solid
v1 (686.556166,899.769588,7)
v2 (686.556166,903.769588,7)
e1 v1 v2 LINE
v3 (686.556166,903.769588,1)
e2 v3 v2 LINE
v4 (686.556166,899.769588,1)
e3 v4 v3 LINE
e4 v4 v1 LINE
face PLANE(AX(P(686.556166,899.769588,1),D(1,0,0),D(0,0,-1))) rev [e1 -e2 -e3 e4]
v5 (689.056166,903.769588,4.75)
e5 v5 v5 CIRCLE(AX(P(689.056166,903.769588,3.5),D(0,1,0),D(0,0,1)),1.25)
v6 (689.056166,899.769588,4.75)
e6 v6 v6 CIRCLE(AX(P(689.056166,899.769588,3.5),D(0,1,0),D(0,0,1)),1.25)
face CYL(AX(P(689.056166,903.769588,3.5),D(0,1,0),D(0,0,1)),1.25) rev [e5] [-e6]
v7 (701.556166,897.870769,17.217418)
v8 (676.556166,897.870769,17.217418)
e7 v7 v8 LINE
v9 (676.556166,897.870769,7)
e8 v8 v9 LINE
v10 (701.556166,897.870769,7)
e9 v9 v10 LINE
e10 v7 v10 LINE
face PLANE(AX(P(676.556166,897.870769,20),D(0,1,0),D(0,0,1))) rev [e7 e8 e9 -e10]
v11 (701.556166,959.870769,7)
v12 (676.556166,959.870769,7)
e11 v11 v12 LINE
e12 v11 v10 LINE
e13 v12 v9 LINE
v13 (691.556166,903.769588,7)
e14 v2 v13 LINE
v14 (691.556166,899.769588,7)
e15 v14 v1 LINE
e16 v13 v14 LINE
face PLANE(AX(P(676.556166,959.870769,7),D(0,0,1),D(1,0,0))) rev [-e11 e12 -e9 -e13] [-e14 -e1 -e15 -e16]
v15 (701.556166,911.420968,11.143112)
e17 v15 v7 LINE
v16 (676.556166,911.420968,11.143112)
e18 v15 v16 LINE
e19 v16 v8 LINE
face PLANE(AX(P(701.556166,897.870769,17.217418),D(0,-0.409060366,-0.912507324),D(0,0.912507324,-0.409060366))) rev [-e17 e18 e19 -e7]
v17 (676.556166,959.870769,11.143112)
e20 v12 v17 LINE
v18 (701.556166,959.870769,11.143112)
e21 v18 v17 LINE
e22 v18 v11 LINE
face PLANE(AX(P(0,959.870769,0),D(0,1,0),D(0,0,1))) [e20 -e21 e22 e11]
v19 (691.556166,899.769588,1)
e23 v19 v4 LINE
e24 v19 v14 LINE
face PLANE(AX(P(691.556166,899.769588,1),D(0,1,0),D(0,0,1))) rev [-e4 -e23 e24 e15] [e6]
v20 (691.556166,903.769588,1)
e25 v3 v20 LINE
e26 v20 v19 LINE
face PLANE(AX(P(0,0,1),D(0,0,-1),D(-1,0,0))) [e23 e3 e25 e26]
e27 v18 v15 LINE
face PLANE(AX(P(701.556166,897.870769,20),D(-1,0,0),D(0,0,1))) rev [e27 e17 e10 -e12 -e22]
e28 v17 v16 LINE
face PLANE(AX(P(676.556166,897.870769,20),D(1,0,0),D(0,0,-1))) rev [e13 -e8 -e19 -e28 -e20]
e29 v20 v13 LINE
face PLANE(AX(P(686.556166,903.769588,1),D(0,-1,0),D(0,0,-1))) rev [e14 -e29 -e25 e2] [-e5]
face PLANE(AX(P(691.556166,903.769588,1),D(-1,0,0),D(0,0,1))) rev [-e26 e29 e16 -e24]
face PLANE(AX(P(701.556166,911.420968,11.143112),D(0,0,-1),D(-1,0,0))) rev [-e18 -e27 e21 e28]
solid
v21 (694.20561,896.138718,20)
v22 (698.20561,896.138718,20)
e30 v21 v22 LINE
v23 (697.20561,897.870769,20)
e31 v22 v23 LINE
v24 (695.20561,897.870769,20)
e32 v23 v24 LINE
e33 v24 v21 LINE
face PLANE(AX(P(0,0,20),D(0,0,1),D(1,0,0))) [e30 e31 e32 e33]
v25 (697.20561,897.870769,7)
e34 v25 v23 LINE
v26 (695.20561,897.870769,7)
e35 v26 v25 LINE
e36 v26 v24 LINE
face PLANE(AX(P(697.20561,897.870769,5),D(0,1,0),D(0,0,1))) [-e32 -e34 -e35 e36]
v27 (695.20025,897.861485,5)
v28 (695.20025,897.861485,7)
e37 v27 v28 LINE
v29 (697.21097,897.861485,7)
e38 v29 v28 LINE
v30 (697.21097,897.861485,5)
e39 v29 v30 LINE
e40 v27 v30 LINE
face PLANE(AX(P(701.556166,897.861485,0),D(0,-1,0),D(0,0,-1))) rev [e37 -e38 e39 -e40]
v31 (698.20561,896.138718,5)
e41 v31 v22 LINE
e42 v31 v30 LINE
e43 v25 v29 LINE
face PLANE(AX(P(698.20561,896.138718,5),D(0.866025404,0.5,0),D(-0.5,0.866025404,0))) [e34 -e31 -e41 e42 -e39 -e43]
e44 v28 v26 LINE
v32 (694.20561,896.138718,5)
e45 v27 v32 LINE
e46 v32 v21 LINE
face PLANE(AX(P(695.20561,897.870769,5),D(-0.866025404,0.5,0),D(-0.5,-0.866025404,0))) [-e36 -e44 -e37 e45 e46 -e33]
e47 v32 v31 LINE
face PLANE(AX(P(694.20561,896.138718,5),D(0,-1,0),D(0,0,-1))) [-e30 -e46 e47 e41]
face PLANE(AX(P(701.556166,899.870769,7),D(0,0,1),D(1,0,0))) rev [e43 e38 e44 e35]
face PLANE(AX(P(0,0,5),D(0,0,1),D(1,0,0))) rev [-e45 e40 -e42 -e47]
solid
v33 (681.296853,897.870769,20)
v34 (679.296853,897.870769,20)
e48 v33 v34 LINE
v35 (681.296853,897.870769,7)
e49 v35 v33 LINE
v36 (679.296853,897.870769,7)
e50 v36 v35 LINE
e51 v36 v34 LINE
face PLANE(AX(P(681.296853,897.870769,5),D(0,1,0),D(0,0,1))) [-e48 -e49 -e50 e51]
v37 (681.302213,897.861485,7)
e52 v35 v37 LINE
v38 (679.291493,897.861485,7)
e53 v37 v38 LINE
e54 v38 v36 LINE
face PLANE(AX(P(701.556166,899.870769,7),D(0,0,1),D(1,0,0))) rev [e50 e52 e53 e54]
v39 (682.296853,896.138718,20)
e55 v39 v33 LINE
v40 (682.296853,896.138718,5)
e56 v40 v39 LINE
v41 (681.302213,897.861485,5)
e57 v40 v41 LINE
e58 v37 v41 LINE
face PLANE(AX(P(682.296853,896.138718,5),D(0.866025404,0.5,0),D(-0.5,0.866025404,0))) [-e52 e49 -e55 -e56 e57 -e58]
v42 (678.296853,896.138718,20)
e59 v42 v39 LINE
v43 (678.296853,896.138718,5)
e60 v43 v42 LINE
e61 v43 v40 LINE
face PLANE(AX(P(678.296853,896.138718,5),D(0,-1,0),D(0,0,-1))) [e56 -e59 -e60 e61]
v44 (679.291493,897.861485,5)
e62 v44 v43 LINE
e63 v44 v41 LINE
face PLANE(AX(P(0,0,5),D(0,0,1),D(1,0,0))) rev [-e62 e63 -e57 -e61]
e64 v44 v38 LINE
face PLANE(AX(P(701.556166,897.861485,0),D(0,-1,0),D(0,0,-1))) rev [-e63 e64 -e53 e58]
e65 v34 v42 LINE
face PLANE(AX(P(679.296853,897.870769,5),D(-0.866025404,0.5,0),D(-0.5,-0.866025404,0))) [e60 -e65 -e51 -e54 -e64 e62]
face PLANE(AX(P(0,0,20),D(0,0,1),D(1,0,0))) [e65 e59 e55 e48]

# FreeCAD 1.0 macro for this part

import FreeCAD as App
import Part
import Sketcher

V = App.Vector
Q = App.Units.Quantity


def add_polygon(sketch, points):
    """Adds a closed chain of lines whose ends are joined by coincident constraints."""
    first, n = sketch.GeometryCount, len(points)
    for a, b in zip(points, points[1:] + points[:1]):
        sketch.addGeometry(Part.LineSegment(App.Vector(*a, 0), App.Vector(*b, 0)), False)
    for i in range(n):
        sketch.addConstraint(Sketcher.Constraint("Coincident", first + i, 2, first + (i + 1) % n, 1))

doc = App.newDocument("Part")
params = doc.addObject("Spreadsheet::Sheet", "Params")
for row, (alias, value) in enumerate([
    ("sketch1_width", "25 mm"),
    ("sketch1_height", "2 mm"),
    ("pad1_length", "20 mm"),
    ("sketch2_width", "25 mm"),
    ("sketch2_height", "13 mm"),
    ("pad2_length", "60 mm"),
    ("sketch3_width", "62 mm"),
    ("pocket1_length", "25 mm"),
    ("sketch4_width", "4 mm"),
    ("sketch4_width2", "2 mm"),
    ("pad3_length", "15 mm"),
    ("sketch5_width", "2 mm"),
    ("sketch5_width2", "4 mm"),
    ("pad4_length", "15 mm"),
    ("sketch6_height", "7 mm"),
    ("pad5_length", "25 mm"),
    ("sketch7_width", "5 mm"),
    ("sketch7_height", "4 mm"),
    ("pad6_length", "6 mm"),
    ("sketch8_height", "1.25 mm"),
    ("groove_angle", "360 deg"),
], start=1):
    params.set(f"A{row}", alias)
    params.set(f"B{row}", "=" + value)
    params.setAlias(f"B{row}", alias)

body = doc.addObject("PartDesign::Body", "Body")

sketch1 = body.newObject("Sketcher::SketchObject", "Sketch")
sketch1.AttachmentSupport = (doc.getObject("XY_Plane"), [""])
sketch1.MapMode = "FlatFace"
add_polygon(sketch1, [(676.556166, 899.870769), (676.556166, 897.870769), (701.556166, 897.870769), (701.556166, 899.870769)])
sketch1.addConstraint([
    Sketcher.Constraint("Vertical", 0),
    Sketcher.Constraint("Horizontal", 1),
    Sketcher.Constraint("Vertical", 2),
    Sketcher.Constraint("Horizontal", 3),
    Sketcher.Constraint("DistanceX", 1, 1, 1, 2, 25.0),
    Sketcher.Constraint("DistanceY", 0, 2, 0, 1, 2.0),
    Sketcher.Constraint("DistanceY", -1, 1, 0, 2, 897.870769),
    Sketcher.Constraint("DistanceX", -1, 1, 0, 2, 676.556166),
])
sketch1.setExpression("Constraints[8]", "Params.sketch1_width")
sketch1.setExpression("Constraints[9]", "Params.sketch1_height")
pad1 = body.newObject("PartDesign::Pad", "Pad")
pad1.Profile = sketch1
pad1.setExpression("Length", "Params.pad1_length")

sketch2 = body.newObject("Sketcher::SketchObject", "Sketch001")
sketch2.AttachmentSupport = (doc.getObject("XZ_Plane"), [""])
sketch2.MapMode = "FlatFace"
sketch2.AttachmentOffset = App.Placement(V(0, 0, -899.870769), App.Rotation())
add_polygon(sketch2, [(676.556166, 7), (676.556166, 20), (701.556166, 20), (701.556166, 7)])
sketch2.addConstraint([
    Sketcher.Constraint("Vertical", 0),
    Sketcher.Constraint("Horizontal", 1),
    Sketcher.Constraint("Vertical", 2),
    Sketcher.Constraint("Horizontal", 3),
    Sketcher.Constraint("DistanceX", 1, 1, 1, 2, 25.0),
    Sketcher.Constraint("DistanceY", 0, 1, 0, 2, 13.0),
    Sketcher.Constraint("DistanceY", -1, 1, 0, 2, 20.0),
    Sketcher.Constraint("DistanceX", -1, 1, 0, 2, 676.556166),
])
sketch2.setExpression("Constraints[8]", "Params.sketch2_width")
sketch2.setExpression("Constraints[9]", "Params.sketch2_height")
pad2 = body.newObject("PartDesign::Pad", "Pad001")
pad2.Profile = sketch2
pad2.setExpression("Length", "Params.pad2_length")
pad2.Reversed = True

sketch3 = body.newObject("Sketcher::SketchObject", "Sketch002")
sketch3.AttachmentSupport = (doc.getObject("YZ_Plane"), [""])
sketch3.MapMode = "FlatFace"
sketch3.AttachmentOffset = App.Placement(V(0, 0, 676.556166), App.Rotation())
add_polygon(sketch3, [(959.870769, 20), (959.870769, 11.143112), (911.420968, 11.143112), (897.870769, 17.217418), (897.870769, 20)])
sketch3.addConstraint([
    Sketcher.Constraint("Vertical", 0),
    Sketcher.Constraint("Horizontal", 1),
    Sketcher.Constraint("Vertical", 3),
    Sketcher.Constraint("Horizontal", 4),
    Sketcher.Constraint("DistanceX", 4, 1, 4, 2, 62.0),
    Sketcher.Constraint("DistanceY", -1, 1, 3, 2, 20.0),
    Sketcher.Constraint("DistanceX", 1, 2, 1, 1, 48.449801),
    Sketcher.Constraint("DistanceY", 0, 2, 0, 1, 8.856888),
    Sketcher.Constraint("DistanceY", 3, 1, 3, 2, 2.782582),
    Sketcher.Constraint("DistanceX", -1, 1, 0, 2, 959.870769),
])
sketch3.setExpression("Constraints[9]", "Params.sketch3_width")
pocket1 = body.newObject("PartDesign::Pocket", "Pocket")
pocket1.Profile = sketch3
pocket1.setExpression("Length", "Params.pocket1_length")
pocket1.Reversed = True
body2 = doc.addObject("PartDesign::Body", "Body001")

sketch4 = body2.newObject("Sketcher::SketchObject", "Sketch003")
sketch4.AttachmentSupport = (doc.getObject("XY_Plane001"), [""])
sketch4.MapMode = "FlatFace"
sketch4.AttachmentOffset = App.Placement(V(0, 0, 20), App.Rotation())
add_polygon(sketch4, [(679.296853, 897.870769), (678.296853, 896.138718), (682.296853, 896.138718), (681.296853, 897.870769)])
sketch4.addConstraint([
    Sketcher.Constraint("Horizontal", 1),
    Sketcher.Constraint("Horizontal", 3),
    Sketcher.Constraint("Equal", 0, 2),
    Sketcher.Constraint("DistanceX", 1, 1, 1, 2, 4.0),
    Sketcher.Constraint("DistanceX", 3, 2, 3, 1, 2.0),
    Sketcher.Constraint("Angle", 0, Q("-120 deg")),
    Sketcher.Constraint("DistanceY", -1, 1, 0, 2, 896.138718),
    Sketcher.Constraint("DistanceX", -1, 1, 0, 2, 678.296853),
])
sketch4.setExpression("Constraints[7]", "Params.sketch4_width")
sketch4.setExpression("Constraints[8]", "Params.sketch4_width2")
pad3 = body2.newObject("PartDesign::Pad", "Pad002")
pad3.Profile = sketch4
pad3.setExpression("Length", "Params.pad3_length")
pad3.Reversed = True
body3 = doc.addObject("PartDesign::Body", "Body002")

sketch5 = body3.newObject("Sketcher::SketchObject", "Sketch004")
sketch5.AttachmentSupport = (doc.getObject("XY_Plane002"), [""])
sketch5.MapMode = "FlatFace"
sketch5.AttachmentOffset = App.Placement(V(0, 0, 20), App.Rotation())
add_polygon(sketch5, [(697.20561, 897.870769), (695.20561, 897.870769), (694.20561, 896.138718), (698.20561, 896.138718)])
sketch5.addConstraint([
    Sketcher.Constraint("Horizontal", 0),
    Sketcher.Constraint("Horizontal", 2),
    Sketcher.Constraint("Equal", 1, 3),
    Sketcher.Constraint("DistanceX", 0, 2, 0, 1, 2.0),
    Sketcher.Constraint("DistanceX", 2, 1, 2, 2, 4.0),
    Sketcher.Constraint("Angle", 1, Q("-120 deg")),
    Sketcher.Constraint("DistanceX", -1, 1, 0, 2, 695.20561),
    Sketcher.Constraint("DistanceY", -1, 1, 0, 2, 897.870769),
])
sketch5.setExpression("Constraints[7]", "Params.sketch5_width")
sketch5.setExpression("Constraints[8]", "Params.sketch5_width2")
pad4 = body3.newObject("PartDesign::Pad", "Pad003")
pad4.Profile = sketch5
pad4.setExpression("Length", "Params.pad4_length")
pad4.Reversed = True
body4 = doc.addObject("PartDesign::Body", "Body003")

sketch6 = body4.newObject("Sketcher::SketchObject", "Sketch005")
sketch6.AttachmentSupport = (doc.getObject("YZ_Plane003"), [""])
sketch6.MapMode = "FlatFace"
sketch6.AttachmentOffset = App.Placement(V(0, 0, 676.556166), App.Rotation())
add_polygon(sketch6, [(899.870769, 0), (897.861485, 0), (897.861485, 7), (899.870769, 7)])
sketch6.addConstraint([
    Sketcher.Constraint("Horizontal", 0),
    Sketcher.Constraint("Vertical", 1),
    Sketcher.Constraint("Horizontal", 2),
    Sketcher.Constraint("Vertical", 3),
    Sketcher.Constraint("PointOnObject", 0, 2, -1),
    Sketcher.Constraint("DistanceY", 1, 1, 1, 2, 7.0),
    Sketcher.Constraint("DistanceX", 0, 2, 0, 1, 2.009284),
    Sketcher.Constraint("DistanceX", -1, 1, 2, 2, 899.870769),
])
sketch6.setExpression("Constraints[9]", "Params.sketch6_height")
pad5 = body4.newObject("PartDesign::Pad", "Pad004")
pad5.Profile = sketch6
pad5.setExpression("Length", "Params.pad5_length")
doc.recompute()

body5 = doc.addObject("PartDesign::Body", "Body004")
body5.BaseFeature = body4
boolean = body.newObject("PartDesign::Boolean", "Boolean")
boolean.Type = "Cut"
boolean.addObjects([body5])
doc.recompute()

sketch7 = body.newObject("Sketcher::SketchObject", "Sketch006")
sketch7.AttachmentSupport = (doc.getObject("XY_Plane"), [""])
sketch7.MapMode = "FlatFace"
sketch7.AttachmentOffset = App.Placement(V(0, 0, 7), App.Rotation())
add_polygon(sketch7, [(691.556166, 903.769588), (691.556166, 899.769588), (686.556166, 899.769588), (686.556166, 903.769588)])
sketch7.addConstraint([
    Sketcher.Constraint("Vertical", 0),
    Sketcher.Constraint("Horizontal", 1),
    Sketcher.Constraint("Vertical", 2),
    Sketcher.Constraint("Horizontal", 3),
    Sketcher.Constraint("DistanceX", 1, 2, 1, 1, 5.0),
    Sketcher.Constraint("DistanceY", 0, 2, 0, 1, 4.0),
    Sketcher.Constraint("DistanceX", -1, 1, 0, 2, 691.556166),
    Sketcher.Constraint("DistanceY", -1, 1, 0, 2, 899.769588),
])
sketch7.setExpression("Constraints[8]", "Params.sketch7_width")
sketch7.setExpression("Constraints[9]", "Params.sketch7_height")
pad6 = body.newObject("PartDesign::Pad", "Pad005")
pad6.Profile = sketch7
pad6.setExpression("Length", "Params.pad6_length")
pad6.Reversed = True

sketch8 = body.newObject("Sketcher::SketchObject", "Sketch007")
sketch8.AttachmentSupport = (doc.getObject("YZ_Plane"), [""])
sketch8.MapMode = "FlatFace"
sketch8.AttachmentOffset = App.Placement(V(0, 0, 689.056166), App.Rotation())
add_polygon(sketch8, [(896.138718, 3.5), (903.769588, 3.5), (903.769588, 4.75), (896.138718, 4.75)])
sketch8.addGeometry(Part.LineSegment(V(903.769588, 3.5, 0), V(896.138718, 3.5, 0)), True)
sketch8.addConstraint([
    Sketcher.Constraint("Horizontal", 0),
    Sketcher.Constraint("Vertical", 1),
    Sketcher.Constraint("Horizontal", 2),
    Sketcher.Constraint("Vertical", 3),
    Sketcher.Constraint("Horizontal", 4),
    Sketcher.Constraint("Coincident", 4, 1, 0, 2),
    Sketcher.Constraint("Vertical", 2, 2, 4, 2),
    Sketcher.Constraint("DistanceY", 1, 1, 1, 2, 1.25),
    Sketcher.Constraint("DistanceY", -1, 1, 0, 2, 3.5),
    Sketcher.Constraint("DistanceX", 0, 1, 0, 2, 7.63087),
    Sketcher.Constraint("DistanceX", -1, 1, 2, 2, 896.138718),
])
sketch8.setExpression("Constraints[11]", "Params.sketch8_height")
groove = body.newObject("PartDesign::Groove", "Groove")
groove.Profile = sketch8
groove.ReferenceAxis = (sketch8, ["Axis0"])
groove.setExpression("Angle", "Params.groove_angle")
doc.recompute()

body6 = doc.addObject("PartDesign::Body", "Body005")
body6.BaseFeature = body4
boolean2 = body2.newObject("PartDesign::Boolean", "Boolean001")
boolean2.Type = "Cut"
boolean2.addObjects([body6])
doc.recompute()

boolean3 = body3.newObject("PartDesign::Boolean", "Boolean002")
boolean3.Type = "Cut"
boolean3.addObjects([body4])

doc.recompute()
